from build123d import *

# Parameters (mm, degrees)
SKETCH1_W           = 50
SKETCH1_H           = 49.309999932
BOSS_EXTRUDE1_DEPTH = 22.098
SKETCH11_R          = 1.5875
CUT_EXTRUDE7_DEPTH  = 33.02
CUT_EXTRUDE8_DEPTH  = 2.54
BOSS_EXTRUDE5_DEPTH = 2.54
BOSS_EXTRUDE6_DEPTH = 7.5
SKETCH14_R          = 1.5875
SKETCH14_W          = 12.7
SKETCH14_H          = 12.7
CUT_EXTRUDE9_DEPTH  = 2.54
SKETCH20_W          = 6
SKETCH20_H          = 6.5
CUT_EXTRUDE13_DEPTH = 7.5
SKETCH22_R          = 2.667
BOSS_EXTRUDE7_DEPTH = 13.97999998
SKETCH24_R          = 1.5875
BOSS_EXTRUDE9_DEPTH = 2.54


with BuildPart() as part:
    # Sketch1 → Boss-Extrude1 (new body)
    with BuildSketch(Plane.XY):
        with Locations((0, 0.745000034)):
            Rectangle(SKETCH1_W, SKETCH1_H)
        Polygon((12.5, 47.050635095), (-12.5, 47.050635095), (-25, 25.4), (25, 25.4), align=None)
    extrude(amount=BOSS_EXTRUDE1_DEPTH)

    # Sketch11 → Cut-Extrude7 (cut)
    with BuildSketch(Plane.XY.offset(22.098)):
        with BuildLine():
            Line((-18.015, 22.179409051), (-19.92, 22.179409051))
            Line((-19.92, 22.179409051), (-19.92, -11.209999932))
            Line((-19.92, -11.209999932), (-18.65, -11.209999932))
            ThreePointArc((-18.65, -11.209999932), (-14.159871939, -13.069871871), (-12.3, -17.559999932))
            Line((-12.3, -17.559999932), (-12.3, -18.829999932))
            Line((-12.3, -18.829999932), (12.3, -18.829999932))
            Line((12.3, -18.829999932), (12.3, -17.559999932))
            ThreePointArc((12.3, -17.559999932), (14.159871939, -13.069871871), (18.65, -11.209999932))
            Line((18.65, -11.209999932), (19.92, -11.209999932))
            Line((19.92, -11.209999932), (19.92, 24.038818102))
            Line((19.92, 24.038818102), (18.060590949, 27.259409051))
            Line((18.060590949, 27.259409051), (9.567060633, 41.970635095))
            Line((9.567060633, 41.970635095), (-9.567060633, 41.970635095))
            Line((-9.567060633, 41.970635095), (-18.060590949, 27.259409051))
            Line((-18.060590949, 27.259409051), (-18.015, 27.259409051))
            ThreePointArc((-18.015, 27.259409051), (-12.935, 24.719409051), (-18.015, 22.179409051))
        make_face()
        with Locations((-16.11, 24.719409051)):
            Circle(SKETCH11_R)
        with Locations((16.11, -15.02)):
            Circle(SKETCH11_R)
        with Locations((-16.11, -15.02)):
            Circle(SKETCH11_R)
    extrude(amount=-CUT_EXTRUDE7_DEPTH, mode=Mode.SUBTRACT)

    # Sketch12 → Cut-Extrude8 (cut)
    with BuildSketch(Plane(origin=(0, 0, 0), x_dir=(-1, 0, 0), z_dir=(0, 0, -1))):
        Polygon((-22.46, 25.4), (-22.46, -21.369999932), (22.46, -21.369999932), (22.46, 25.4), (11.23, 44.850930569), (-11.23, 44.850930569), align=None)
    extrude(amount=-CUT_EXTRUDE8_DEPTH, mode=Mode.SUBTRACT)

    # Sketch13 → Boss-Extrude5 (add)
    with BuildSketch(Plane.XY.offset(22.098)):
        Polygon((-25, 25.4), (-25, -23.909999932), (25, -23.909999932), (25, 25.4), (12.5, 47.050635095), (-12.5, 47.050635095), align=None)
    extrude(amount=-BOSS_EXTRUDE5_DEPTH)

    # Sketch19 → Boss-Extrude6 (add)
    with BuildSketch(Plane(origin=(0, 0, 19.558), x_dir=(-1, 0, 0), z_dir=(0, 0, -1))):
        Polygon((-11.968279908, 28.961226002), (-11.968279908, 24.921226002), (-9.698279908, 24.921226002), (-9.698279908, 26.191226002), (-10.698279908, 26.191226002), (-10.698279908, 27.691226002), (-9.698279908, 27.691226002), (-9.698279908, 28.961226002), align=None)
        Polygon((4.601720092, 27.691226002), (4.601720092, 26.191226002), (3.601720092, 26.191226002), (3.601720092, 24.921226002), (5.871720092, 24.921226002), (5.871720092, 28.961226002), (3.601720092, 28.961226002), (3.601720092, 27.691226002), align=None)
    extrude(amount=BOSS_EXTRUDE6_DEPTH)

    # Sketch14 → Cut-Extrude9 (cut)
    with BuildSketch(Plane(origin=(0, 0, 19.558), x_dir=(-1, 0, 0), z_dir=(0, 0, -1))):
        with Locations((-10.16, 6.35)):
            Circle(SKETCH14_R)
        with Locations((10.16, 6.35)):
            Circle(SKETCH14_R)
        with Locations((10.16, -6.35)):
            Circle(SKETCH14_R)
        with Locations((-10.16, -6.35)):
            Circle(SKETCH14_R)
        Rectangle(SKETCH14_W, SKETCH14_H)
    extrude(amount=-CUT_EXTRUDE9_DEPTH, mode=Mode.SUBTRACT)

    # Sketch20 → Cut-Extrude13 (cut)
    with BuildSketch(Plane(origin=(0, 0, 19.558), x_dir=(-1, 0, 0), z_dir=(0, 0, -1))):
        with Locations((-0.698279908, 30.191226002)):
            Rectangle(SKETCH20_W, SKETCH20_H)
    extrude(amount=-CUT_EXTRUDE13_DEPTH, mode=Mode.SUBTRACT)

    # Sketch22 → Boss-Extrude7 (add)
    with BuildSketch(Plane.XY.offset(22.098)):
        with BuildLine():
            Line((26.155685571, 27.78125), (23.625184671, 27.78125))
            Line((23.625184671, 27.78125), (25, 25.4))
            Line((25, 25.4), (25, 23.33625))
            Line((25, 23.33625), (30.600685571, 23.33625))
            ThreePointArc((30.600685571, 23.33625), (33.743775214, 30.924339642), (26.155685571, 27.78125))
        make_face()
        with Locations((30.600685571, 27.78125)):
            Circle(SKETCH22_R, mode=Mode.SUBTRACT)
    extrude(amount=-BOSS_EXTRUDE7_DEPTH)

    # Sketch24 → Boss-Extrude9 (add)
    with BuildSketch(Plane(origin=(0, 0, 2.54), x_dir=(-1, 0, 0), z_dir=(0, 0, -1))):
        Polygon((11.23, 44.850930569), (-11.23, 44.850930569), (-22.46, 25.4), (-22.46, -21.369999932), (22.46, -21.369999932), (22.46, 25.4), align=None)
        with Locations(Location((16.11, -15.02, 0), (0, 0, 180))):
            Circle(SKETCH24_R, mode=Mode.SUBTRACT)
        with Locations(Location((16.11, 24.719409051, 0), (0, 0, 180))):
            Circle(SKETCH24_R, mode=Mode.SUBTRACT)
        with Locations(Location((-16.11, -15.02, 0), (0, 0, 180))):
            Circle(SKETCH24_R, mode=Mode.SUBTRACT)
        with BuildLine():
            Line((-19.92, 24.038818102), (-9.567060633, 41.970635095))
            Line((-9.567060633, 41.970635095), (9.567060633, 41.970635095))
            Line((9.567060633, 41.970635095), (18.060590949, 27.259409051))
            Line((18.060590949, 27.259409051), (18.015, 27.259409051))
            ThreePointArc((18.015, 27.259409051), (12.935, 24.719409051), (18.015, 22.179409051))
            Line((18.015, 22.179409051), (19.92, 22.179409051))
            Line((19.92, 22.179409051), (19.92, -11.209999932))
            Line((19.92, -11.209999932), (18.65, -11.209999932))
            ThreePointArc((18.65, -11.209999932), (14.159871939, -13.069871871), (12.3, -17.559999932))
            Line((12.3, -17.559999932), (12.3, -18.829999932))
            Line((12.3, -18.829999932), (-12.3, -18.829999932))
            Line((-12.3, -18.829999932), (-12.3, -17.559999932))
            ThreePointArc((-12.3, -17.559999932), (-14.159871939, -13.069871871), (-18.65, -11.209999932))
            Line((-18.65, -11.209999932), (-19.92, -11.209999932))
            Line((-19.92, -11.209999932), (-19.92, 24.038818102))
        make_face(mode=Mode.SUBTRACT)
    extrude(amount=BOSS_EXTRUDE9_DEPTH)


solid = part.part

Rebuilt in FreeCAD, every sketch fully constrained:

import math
import FreeCAD as App
import Part
import Sketcher
Q = App.Units.Quantity


def add_polygon(sketch, points):
    """Adds a closed chain of lines whose ends are joined by coincident constraints."""
    first, n = sketch.GeometryCount, len(points)
    for a, b in zip(points, points[1:] + points[:1]):
        sketch.addGeometry(Part.LineSegment(App.Vector(*a, 0), App.Vector(*b, 0)), False)
    for i in range(n):
        sketch.addConstraint(Sketcher.Constraint("Coincident", first + i, 2, first + (i + 1) % n, 1))

doc = App.newDocument("Part")
body = doc.addObject("PartDesign::Body", "Body")

# Sketch on XY plane
sketch1 = doc.addObject("Sketcher::SketchObject", "Sketch")
body.addObject(sketch1)
sketch1.AttachmentSupport = (doc.XY_Plane, [""])
sketch1.MapMode = "FlatFace"
add_polygon(sketch1, [(-25, 25), (-25, -24), (25, -24), (25, 25), (12, 47), (-12, 47)])  # lines 0-5
sketch1.addConstraint(Sketcher.Constraint("Vertical", 0))
sketch1.addConstraint(Sketcher.Constraint("Horizontal", 1))
sketch1.addConstraint(Sketcher.Constraint("Vertical", 2))
sketch1.addConstraint(Sketcher.Constraint("Horizontal", 4))
sketch1.addConstraint(Sketcher.Constraint("Symmetric", 2, 2, 5, 2, -2))
sketch1.addConstraint(Sketcher.Constraint("Equal", 3, 5))
sketch1.addConstraint(Sketcher.Constraint("DistanceY", -1, 1, 2, 2, Q("1 in")))
sketch1.addConstraint(Sketcher.Constraint("Angle", 3, Q("120 deg")))
sketch1.addConstraint(Sketcher.Constraint("DistanceX", 1, 1, 1, 2, Q("50 mm")))
sketch1.addConstraint(Sketcher.Constraint("DistanceX", 4, 2, 4, 1, Q("25 mm")))
sketch1.addConstraint(Sketcher.Constraint("DistanceY", 0, 2, 0, 1, Q("49.31 mm")))
pad1 = doc.addObject("PartDesign::Pad", "Pad")
body.addObject(pad1)
pad1.Profile = sketch1
pad1.Length = Q("0.87 in")

# Sketch on XY plane
sketch2 = doc.addObject("Sketcher::SketchObject", "Sketch001")
body.addObject(sketch2)
sketch2.AttachmentSupport = (doc.XY_Plane, [""])
sketch2.MapMode = "FlatFace"
sketch2.AttachmentOffset = App.Placement(App.Vector(0, 0, 0.87 * 25.4), App.Rotation())
sketch2.addGeometry(Part.LineSegment(App.Vector(-18.015, 22.179, 0), App.Vector(-19.92, 22.179, 0)), False)
sketch2.addGeometry(Part.LineSegment(App.Vector(-19.92, 22.179, 0), App.Vector(-19.92, -11.21, 0)), False)
sketch2.addGeometry(Part.LineSegment(App.Vector(-19.92, -11.21, 0), App.Vector(-18.65, -11.21, 0)), False)
sketch2.addGeometry(Part.ArcOfCircle(Part.Circle(App.Vector(-18.65, -17.56, 0), App.Vector(0, 0, 1), 6.35), math.radians(0), math.radians(90)), False)
sketch2.addGeometry(Part.LineSegment(App.Vector(-12.3, -17.56, 0), App.Vector(-12.3, -18.83, 0)), False)
sketch2.addGeometry(Part.LineSegment(App.Vector(-12.3, -18.83, 0), App.Vector(12.3, -18.83, 0)), False)
sketch2.addGeometry(Part.LineSegment(App.Vector(12.3, -18.83, 0), App.Vector(12.3, -17.56, 0)), False)
sketch2.addGeometry(Part.ArcOfCircle(Part.Circle(App.Vector(18.65, -17.56, 0), App.Vector(0, 0, 1), 6.35), math.radians(90), math.radians(180)), False)
sketch2.addGeometry(Part.LineSegment(App.Vector(18.65, -11.21, 0), App.Vector(19.92, -11.21, 0)), False)
sketch2.addGeometry(Part.LineSegment(App.Vector(19.92, -11.21, 0), App.Vector(19.92, 24.039, 0)), False)
sketch2.addGeometry(Part.LineSegment(App.Vector(19.92, 24.039, 0), App.Vector(18.061, 27.259, 0)), False)
sketch2.addGeometry(Part.LineSegment(App.Vector(18.061, 27.259, 0), App.Vector(9.567, 41.971, 0)), False)
sketch2.addGeometry(Part.LineSegment(App.Vector(9.567, 41.971, 0), App.Vector(-9.567, 41.971, 0)), False)
sketch2.addGeometry(Part.LineSegment(App.Vector(-9.567, 41.971, 0), App.Vector(-18.061, 27.259, 0)), False)
sketch2.addGeometry(Part.LineSegment(App.Vector(-18.061, 27.259, 0), App.Vector(-18.015, 27.259, 0)), False)
sketch2.addGeometry(Part.ArcOfCircle(Part.Circle(App.Vector(-16.11, 24.719, 0), App.Vector(0, 0, 1), 3.175), math.radians(-127), math.radians(127)), False)
sketch2.addGeometry(Part.Circle(App.Vector(-16.11, 24.719, 0), App.Vector(0, 0, 1), 1.587), False)
sketch2.addGeometry(Part.Circle(App.Vector(16.11, -15.02, 0), App.Vector(0, 0, 1), 1.587), False)
sketch2.addGeometry(Part.Circle(App.Vector(-16.11, -15.02, 0), App.Vector(0, 0, 1), 1.587), False)
sketch2.addConstraint(Sketcher.Constraint("Coincident", 0, 2, 1, 1))
sketch2.addConstraint(Sketcher.Constraint("Coincident", 1, 2, 2, 1))
sketch2.addConstraint(Sketcher.Constraint("Tangent", 2, 2, 3, 2))
sketch2.addConstraint(Sketcher.Constraint("Tangent", 3, 1, 4, 1))
sketch2.addConstraint(Sketcher.Constraint("Coincident", 4, 2, 5, 1))
sketch2.addConstraint(Sketcher.Constraint("Coincident", 5, 2, 6, 1))
sketch2.addConstraint(Sketcher.Constraint("Tangent", 6, 2, 7, 2))
sketch2.addConstraint(Sketcher.Constraint("Tangent", 7, 1, 8, 1))
sketch2.addConstraint(Sketcher.Constraint("Coincident", 8, 2, 9, 1))
sketch2.addConstraint(Sketcher.Constraint("Coincident", 9, 2, 10, 1))
sketch2.addConstraint(Sketcher.Constraint("Coincident", 10, 2, 11, 1))
sketch2.addConstraint(Sketcher.Constraint("Coincident", 11, 2, 12, 1))
sketch2.addConstraint(Sketcher.Constraint("Coincident", 12, 2, 13, 1))
sketch2.addConstraint(Sketcher.Constraint("Coincident", 13, 2, 14, 1))
sketch2.addConstraint(Sketcher.Constraint("Coincident", 14, 2, 15, 2))
sketch2.addConstraint(Sketcher.Constraint("Coincident", 15, 1, 0, 1))
sketch2.addConstraint(Sketcher.Constraint("Horizontal", 0))
sketch2.addConstraint(Sketcher.Constraint("Vertical", 1))
sketch2.addConstraint(Sketcher.Constraint("Horizontal", 2))
sketch2.addConstraint(Sketcher.Constraint("Vertical", 4))
sketch2.addConstraint(Sketcher.Constraint("Horizontal", 5))
sketch2.addConstraint(Sketcher.Constraint("Vertical", 6))
sketch2.addConstraint(Sketcher.Constraint("Horizontal", 8))
sketch2.addConstraint(Sketcher.Constraint("Vertical", 9))
sketch2.addConstraint(Sketcher.Constraint("Horizontal", 12))
sketch2.addConstraint(Sketcher.Constraint("Horizontal", 14))
sketch2.addConstraint(Sketcher.Constraint("Coincident", 16, 3, 15, 3))
sketch2.addConstraint(Sketcher.Constraint("Equal", 3, 7))
sketch2.addConstraint(Sketcher.Constraint("Equal", 16, 17))
sketch2.addConstraint(Sketcher.Constraint("Equal", 17, 18))
sketch2.addConstraint(Sketcher.Constraint("Symmetric", 3, 3, 7, 3, -2))
sketch2.addConstraint(Sketcher.Constraint("Symmetric", 17, 3, 18, 3, -2))
sketch2.addConstraint(Sketcher.Constraint("Symmetric", 10, 2, 13, 2, -2))
sketch2.addConstraint(Sketcher.Constraint("Parallel", 10, 11))
sketch2.addConstraint(Sketcher.Constraint("Vertical", 16, 3, 18, 3))
sketch2.addConstraint(Sketcher.Constraint("Vertical", 14, 2, 15, 1))
sketch2.addConstraint(Sketcher.Constraint("Equal", 2, 8))
sketch2.addConstraint(Sketcher.Constraint("Equal", 8, 4))
sketch2.addConstraint(Sketcher.Constraint("Equal", 11, 13))
sketch2.addConstraint(Sketcher.Constraint("Radius", 3, Q("0.25 in")))
sketch2.addConstraint(Sketcher.Constraint("Diameter", 16, Q("0.125 in")))
sketch2.addConstraint(Sketcher.Constraint("Angle", 10, Q("120 deg")))
sketch2.addConstraint(Sketcher.Constraint("Radius", 15, Q("0.125 in")))
sketch2.addConstraint(Sketcher.Constraint("DistanceX", 2, 1, 2, 2, Q("0.05 in")))
sketch2.addConstraint(Sketcher.Constraint("DistanceX", 3, 3, 15, 3, Q("0.1 in")))
sketch2.addConstraint(Sketcher.Constraint("DistanceY", 7, 3, 17, 3, Q("0.1 in")))
sketch2.addConstraint(Sketcher.Constraint("DistanceY", 0, 2, 15, 3, Q("0.1 in")))
sketch2.addConstraint(Sketcher.Constraint("DistanceX", 5, 1, 5, 2, Q("24.6 mm")))
sketch2.addConstraint(Sketcher.Constraint("DistanceX", 12, 2, 12, 1, Q("19.134121 mm")))
sketch2.addConstraint(Sketcher.Constraint("DistanceX", 14, 1, 14, 2, Q("0.045591 mm")))
sketch2.addConstraint(Sketcher.Constraint("DistanceY", 1, 2, 1, 1, Q("33.389409 mm")))
sketch2.addConstraint(Sketcher.Constraint("DistanceY", 3, 3, -1, 1, Q("17.56 mm")))
pocket1 = doc.addObject("PartDesign::Pocket", "Pocket")
body.addObject(pocket1)
pocket1.Profile = sketch2
pocket1.Length = Q("1.3 in")

# Sketch on XY plane
sketch3 = doc.addObject("Sketcher::SketchObject", "Sketch002")
body.addObject(sketch3)
sketch3.AttachmentSupport = (doc.XY_Plane, [""])
sketch3.MapMode = "FlatFace"
add_polygon(sketch3, [(22, 25), (22, -21), (-22, -21), (-22, 25), (-11, 45), (11, 45)])  # lines 0-5
sketch3.addConstraint(Sketcher.Constraint("Vertical", 0))
sketch3.addConstraint(Sketcher.Constraint("Horizontal", 1))
sketch3.addConstraint(Sketcher.Constraint("Vertical", 2))
sketch3.addConstraint(Sketcher.Constraint("Horizontal", 4))
sketch3.addConstraint(Sketcher.Constraint("Symmetric", 2, 2, 5, 2, -2))
sketch3.addConstraint(Sketcher.Constraint("Equal", 3, 5))
sketch3.addConstraint(Sketcher.Constraint("DistanceY", -1, 1, 2, 2, Q("1 in")))
sketch3.addConstraint(Sketcher.Constraint("Angle", 3, Q("60 deg")))
sketch3.addConstraint(Sketcher.Constraint("DistanceX", 1, 2, 1, 1, Q("44.92 mm")))
sketch3.addConstraint(Sketcher.Constraint("DistanceX", 4, 1, 4, 2, Q("22.46 mm")))
sketch3.addConstraint(Sketcher.Constraint("DistanceY", 0, 2, 0, 1, Q("46.77 mm")))
pocket2 = doc.addObject("PartDesign::Pocket", "Pocket001")
body.addObject(pocket2)
pocket2.Profile = sketch3
pocket2.Length = Q("0.1 in")
pocket2.Reversed = True

# Sketch on XY plane
sketch4 = doc.addObject("Sketcher::SketchObject", "Sketch003")
body.addObject(sketch4)
sketch4.AttachmentSupport = (doc.XY_Plane, [""])
sketch4.MapMode = "FlatFace"
sketch4.AttachmentOffset = App.Placement(App.Vector(0, 0, 0.87 * 25.4), App.Rotation())
add_polygon(sketch4, [(-25, 25), (-25, -24), (25, -24), (25, 25), (12, 47), (-12, 47)])  # lines 0-5
sketch4.addConstraint(Sketcher.Constraint("Vertical", 0))
sketch4.addConstraint(Sketcher.Constraint("Horizontal", 1))
sketch4.addConstraint(Sketcher.Constraint("Vertical", 2))
sketch4.addConstraint(Sketcher.Constraint("Horizontal", 4))
sketch4.addConstraint(Sketcher.Constraint("Symmetric", 2, 2, 5, 2, -2))
sketch4.addConstraint(Sketcher.Constraint("Equal", 3, 5))
sketch4.addConstraint(Sketcher.Constraint("DistanceY", -1, 1, 2, 2, Q("1 in")))
sketch4.addConstraint(Sketcher.Constraint("Angle", 3, Q("120 deg")))
sketch4.addConstraint(Sketcher.Constraint("DistanceX", 1, 1, 1, 2, Q("50 mm")))
sketch4.addConstraint(Sketcher.Constraint("DistanceX", 4, 2, 4, 1, Q("25 mm")))
sketch4.addConstraint(Sketcher.Constraint("DistanceY", 0, 2, 0, 1, Q("49.31 mm")))
pad2 = doc.addObject("PartDesign::Pad", "Pad001")
body.addObject(pad2)
pad2.Profile = sketch4
pad2.Length = Q("0.1 in")
pad2.Reversed = True

# Sketch on XY plane
sketch5 = doc.addObject("Sketcher::SketchObject", "Sketch004")
body.addObject(sketch5)
sketch5.AttachmentSupport = (doc.XY_Plane, [""])
sketch5.MapMode = "FlatFace"
sketch5.AttachmentOffset = App.Placement(App.Vector(0, 0, 0.77 * 25.4), App.Rotation())
add_polygon(sketch5, [(12, 29), (12, 24.9), (9.7, 24.9), (9.7, 26.2), (10.7, 26.2), (10.7, 27.7), (9.7, 27.7), (9.7, 29)])  # lines 0-7
add_polygon(sketch5, [(-4.6, 27.7), (-4.6, 26.2), (-3.6, 26.2), (-3.6, 24.9), (-5.9, 24.9), (-5.9, 29), (-3.6, 29), (-3.6, 27.7)])  # lines 8-15
sketch5.addConstraint(Sketcher.Constraint("Vertical", 0))
sketch5.addConstraint(Sketcher.Constraint("Horizontal", 1))
sketch5.addConstraint(Sketcher.Constraint("Vertical", 2))
sketch5.addConstraint(Sketcher.Constraint("Horizontal", 3))
sketch5.addConstraint(Sketcher.Constraint("Vertical", 4))
sketch5.addConstraint(Sketcher.Constraint("Horizontal", 5))
sketch5.addConstraint(Sketcher.Constraint("Vertical", 6))
sketch5.addConstraint(Sketcher.Constraint("Horizontal", 7))
sketch5.addConstraint(Sketcher.Constraint("Vertical", 8))
sketch5.addConstraint(Sketcher.Constraint("Horizontal", 9))
sketch5.addConstraint(Sketcher.Constraint("Vertical", 10))
sketch5.addConstraint(Sketcher.Constraint("Horizontal", 11))
sketch5.addConstraint(Sketcher.Constraint("Vertical", 12))
sketch5.addConstraint(Sketcher.Constraint("Horizontal", 13))
sketch5.addConstraint(Sketcher.Constraint("Vertical", 14))
sketch5.addConstraint(Sketcher.Constraint("Horizontal", 15))
sketch5.addConstraint(Sketcher.Constraint("Horizontal", 3, 2, 8, 2))
sketch5.addConstraint(Sketcher.Constraint("Horizontal", 1, 2, 10, 2))
sketch5.addConstraint(Sketcher.Constraint("Horizontal", 7, 2, 12, 2))
sketch5.addConstraint(Sketcher.Constraint("Horizontal", 5, 2, 14, 2))
sketch5.addConstraint(Sketcher.Constraint("Vertical", 2, 2, 5, 2))
sketch5.addConstraint(Sketcher.Constraint("Vertical", 10, 2, 13, 2))
sketch5.addConstraint(Sketcher.Constraint("Equal", 5, 9))
sketch5.addConstraint(Sketcher.Constraint("Equal", 7, 11))
sketch5.addConstraint(Sketcher.Constraint("Equal", 2, 6))
sketch5.addConstraint(Sketcher.Constraint("DistanceY", 2, 1, 2, 2, Q("0.05 in")))
sketch5.addConstraint(Sketcher.Constraint("DistanceX", 3, 2, 0, 2, Q("0.05 in")))
sketch5.addConstraint(Sketcher.Constraint("DistanceX", 1, 2, 1, 1, Q("2.27 mm")))
sketch5.addConstraint(Sketcher.Constraint("DistanceY", 0, 2, 0, 1, Q("4.04 mm")))
sketch5.addConstraint(Sketcher.Constraint("DistanceX", 9, 2, -1, 1, Q("0.1418 in")))
sketch5.addConstraint(Sketcher.Constraint("DistanceX", 8, 2, 2, 2, Q("14.3 mm")))
sketch5.addConstraint(Sketcher.Constraint("DistanceY", -1, 1, 0, 2, Q("24.921226 mm")))
pad3 = doc.addObject("PartDesign::Pad", "Pad002")
body.addObject(pad3)
pad3.Profile = sketch5
pad3.Length = 7.5
pad3.Reversed = True

# Sketch on XY plane
sketch6 = doc.addObject("Sketcher::SketchObject", "Sketch005")
body.addObject(sketch6)
sketch6.AttachmentSupport = (doc.XY_Plane, [""])
sketch6.MapMode = "FlatFace"
sketch6.AttachmentOffset = App.Placement(App.Vector(0, 0, 0.77 * 25.4), App.Rotation())
sketch6.addGeometry(Part.Circle(App.Vector(10.2, 6.3, 0), App.Vector(0, 0, 1), 1.6), False)  # 0
sketch6.addGeometry(Part.Circle(App.Vector(-10.2, 6.3, 0), App.Vector(0, 0, 1), 1.6), False)  # 1
sketch6.addGeometry(Part.Circle(App.Vector(-10.2, -6.3, 0), App.Vector(0, 0, 1), 1.6), False)  # 2
sketch6.addGeometry(Part.Circle(App.Vector(10.2, -6.3, 0), App.Vector(0, 0, 1), 1.6), False)  # 3
add_polygon(sketch6, [(6.3, 6.3), (6.3, -6.3), (-6.3, -6.3), (-6.3, 6.3)])  # lines 4-7
sketch6.addConstraint(Sketcher.Constraint("Vertical", 4))
sketch6.addConstraint(Sketcher.Constraint("Horizontal", 5))
sketch6.addConstraint(Sketcher.Constraint("Vertical", 6))
sketch6.addConstraint(Sketcher.Constraint("Horizontal", 7))
sketch6.addConstraint(Sketcher.Constraint("Equal", 0, 1))
sketch6.addConstraint(Sketcher.Constraint("Equal", 1, 2))
sketch6.addConstraint(Sketcher.Constraint("Equal", 2, 3))
sketch6.addConstraint(Sketcher.Constraint("Symmetric", 0, 3, 2, 3, -1, 1))
sketch6.addConstraint(Sketcher.Constraint("Symmetric", 1, 3, 3, 3, -1, 1))
sketch6.addConstraint(Sketcher.Constraint("Symmetric", 4, 2, 6, 2, -1, 1))
sketch6.addConstraint(Sketcher.Constraint("Symmetric", 0, 3, 1, 3, -2))
sketch6.addConstraint(Sketcher.Constraint("Horizontal", 3, 3, 4, 2))
sketch6.addConstraint(Sketcher.Constraint("Equal", 7, 4))
sketch6.addConstraint(Sketcher.Constraint("Diameter", 0, Q("0.125 in")))
sketch6.addConstraint(Sketcher.Constraint("DistanceX", 5, 2, 5, 1, Q("0.5 in")))
sketch6.addConstraint(Sketcher.Constraint("DistanceX", -1, 1, 0, 3, Q("0.4 in")))
pocket3 = doc.addObject("PartDesign::Pocket", "Pocket002")
body.addObject(pocket3)
pocket3.Profile = sketch6
pocket3.Length = Q("0.1 in")
pocket3.Reversed = True

# Sketch on XY plane
sketch7 = doc.addObject("Sketcher::SketchObject", "Sketch006")
body.addObject(sketch7)
sketch7.AttachmentSupport = (doc.XY_Plane, [""])
sketch7.MapMode = "FlatFace"
sketch7.AttachmentOffset = App.Placement(App.Vector(0, 0, 0.77 * 25.4), App.Rotation())
add_polygon(sketch7, [(4, 33), (4, 27), (-2, 27), (-2, 33)])  # lines 0-3
sketch7.addConstraint(Sketcher.Constraint("Vertical", 0))
sketch7.addConstraint(Sketcher.Constraint("Horizontal", 1))
sketch7.addConstraint(Sketcher.Constraint("Vertical", 2))
sketch7.addConstraint(Sketcher.Constraint("Horizontal", 3))
sketch7.addConstraint(Sketcher.Constraint("DistanceX", 1, 2, 1, 1, Q("6 mm")))
sketch7.addConstraint(Sketcher.Constraint("DistanceY", 0, 2, 0, 1, Q("6.5 mm")))
sketch7.addConstraint(Sketcher.Constraint("DistanceX", -1, 1, 0, 2, Q("3.69828 mm")))
sketch7.addConstraint(Sketcher.Constraint("DistanceY", -1, 1, 0, 2, Q("26.941226 mm")))
pocket4 = doc.addObject("PartDesign::Pocket", "Pocket003")
body.addObject(pocket4)
pocket4.Profile = sketch7
pocket4.Length = 7.5
pocket4.Reversed = True

# Sketch on XY plane
sketch8 = doc.addObject("Sketcher::SketchObject", "Sketch007")
body.addObject(sketch8)
sketch8.AttachmentSupport = (doc.XY_Plane, [""])
sketch8.MapMode = "FlatFace"
sketch8.AttachmentOffset = App.Placement(App.Vector(0, 0, 0.87 * 25.4), App.Rotation())
sketch8.addGeometry(Part.LineSegment(App.Vector(26.2, 27.8, 0), App.Vector(23.6, 27.8, 0)), False)
sketch8.addGeometry(Part.LineSegment(App.Vector(23.6, 27.8, 0), App.Vector(25, 25.4, 0)), False)
sketch8.addGeometry(Part.LineSegment(App.Vector(25, 25.4, 0), App.Vector(25, 23.3, 0)), False)
sketch8.addGeometry(Part.LineSegment(App.Vector(25, 23.3, 0), App.Vector(30.6, 23.3, 0)), False)
sketch8.addGeometry(Part.ArcOfCircle(Part.Circle(App.Vector(30.6, 27.8, 0), App.Vector(0, 0, 1), 4.4), math.radians(-90), math.radians(180)), False)
sketch8.addGeometry(Part.Circle(App.Vector(30.6, 27.8, 0), App.Vector(0, 0, 1), 2.7), False)
sketch8.addConstraint(Sketcher.Constraint("Coincident", 0, 2, 1, 1))
sketch8.addConstraint(Sketcher.Constraint("Coincident", 1, 2, 2, 1))
sketch8.addConstraint(Sketcher.Constraint("Coincident", 2, 2, 3, 1))
sketch8.addConstraint(Sketcher.Constraint("Tangent", 3, 2, 4, 1))
sketch8.addConstraint(Sketcher.Constraint("Coincident", 4, 2, 0, 1))
sketch8.addConstraint(Sketcher.Constraint("Horizontal", 0))
sketch8.addConstraint(Sketcher.Constraint("Vertical", 2))
sketch8.addConstraint(Sketcher.Constraint("Horizontal", 3))
sketch8.addConstraint(Sketcher.Constraint("Coincident", 5, 3, 4, 3))
sketch8.addConstraint(Sketcher.Constraint("Horizontal", 5, 3, 0, 2))
sketch8.addConstraint(Sketcher.Constraint("Diameter", 5, Q("0.21 in")))
sketch8.addConstraint(Sketcher.Constraint("DistanceY", -1, 1, 1, 2, Q("1 in")))
sketch8.addConstraint(Sketcher.Constraint("Angle", 1, Q("-60 deg")))
sketch8.addConstraint(Sketcher.Constraint("Radius", 4, Q("0.175 in")))
sketch8.addConstraint(Sketcher.Constraint("DistanceY", -1, 1, 4, 3, Q("1.09375 in")))
sketch8.addConstraint(Sketcher.Constraint("DistanceX", 0, 2, 0, 1, Q("2.530501 mm")))
sketch8.addConstraint(Sketcher.Constraint("DistanceX", -1, 1, 1, 2, Q("25 mm")))
pad4 = doc.addObject("PartDesign::Pad", "Pad003")
body.addObject(pad4)
pad4.Profile = sketch8
pad4.Length = 13.98
pad4.Reversed = True

# Sketch on XY plane
sketch9 = doc.addObject("Sketcher::SketchObject", "Sketch008")
body.addObject(sketch9)
sketch9.AttachmentSupport = (doc.XY_Plane, [""])
sketch9.MapMode = "FlatFace"
sketch9.AttachmentOffset = App.Placement(App.Vector(0, 0, 0.1 * 25.4), App.Rotation())
add_polygon(sketch9, [(-11.23, 44.851), (11.23, 44.851), (22.46, 25.4), (22.46, -21.37), (-22.46, -21.37), (-22.46, 25.4)])  # lines 0-5
sketch9.addGeometry(Part.Circle(App.Vector(16.11, -15.02, 0), App.Vector(0, 0, 1), 1.587), False)  # 6
sketch9.addGeometry(Part.LineSegment(App.Vector(19.92, -11.21, 0), App.Vector(19.92, 24.039, 0)), False)  # 7
sketch9.addGeometry(Part.LineSegment(App.Vector(19.92, 24.039, 0), App.Vector(9.567, 41.971, 0)), False)  # 8
sketch9.addGeometry(Part.LineSegment(App.Vector(9.567, 41.971, 0), App.Vector(-9.567, 41.971, 0)), False)  # 9
sketch9.addGeometry(Part.LineSegment(App.Vector(-9.567, 41.971, 0), App.Vector(-18.061, 27.259, 0)), False)  # 10
sketch9.addGeometry(Part.LineSegment(App.Vector(-18.061, 27.259, 0), App.Vector(-18.015, 27.259, 0)), False)  # 11
sketch9.addGeometry(Part.ArcOfCircle(Part.Circle(App.Vector(-16.11, 24.719, 0), App.Vector(0, 0, 1), 3.175), math.radians(-127), math.radians(127)), False)  # 12
sketch9.addGeometry(Part.LineSegment(App.Vector(-18.015, 22.179, 0), App.Vector(-19.92, 22.179, 0)), False)  # 13
sketch9.addGeometry(Part.LineSegment(App.Vector(-19.92, 22.179, 0), App.Vector(-19.92, -11.21, 0)), False)  # 14
sketch9.addGeometry(Part.LineSegment(App.Vector(-19.92, -11.21, 0), App.Vector(-18.65, -11.21, 0)), False)  # 15
sketch9.addGeometry(Part.ArcOfCircle(Part.Circle(App.Vector(-18.65, -17.56, 0), App.Vector(0, 0, 1), 6.35), math.radians(0), math.radians(90)), False)  # 16
sketch9.addGeometry(Part.LineSegment(App.Vector(-12.3, -17.56, 0), App.Vector(-12.3, -18.83, 0)), False)  # 17
sketch9.addGeometry(Part.LineSegment(App.Vector(-12.3, -18.83, 0), App.Vector(12.3, -18.83, 0)), False)  # 18
sketch9.addGeometry(Part.LineSegment(App.Vector(12.3, -18.83, 0), App.Vector(12.3, -17.56, 0)), False)  # 19
sketch9.addGeometry(Part.ArcOfCircle(Part.Circle(App.Vector(18.65, -17.56, 0), App.Vector(0, 0, 1), 6.35), math.radians(90), math.radians(180)), False)  # 20
sketch9.addGeometry(Part.LineSegment(App.Vector(18.65, -11.21, 0), App.Vector(19.92, -11.21, 0)), False)  # 21
sketch9.addGeometry(Part.Circle(App.Vector(-16.11, -15.02, 0), App.Vector(0, 0, 1), 1.587), False)  # 22
sketch9.addGeometry(Part.Circle(App.Vector(-16.11, 24.719, 0), App.Vector(0, 0, 1), 1.587), False)  # 23
sketch9.addConstraint(Sketcher.Constraint("Coincident", 7, 2, 8, 1))
sketch9.addConstraint(Sketcher.Constraint("Coincident", 8, 2, 9, 1))
sketch9.addConstraint(Sketcher.Constraint("Coincident", 9, 2, 10, 1))
sketch9.addConstraint(Sketcher.Constraint("Coincident", 10, 2, 11, 1))
sketch9.addConstraint(Sketcher.Constraint("Coincident", 11, 2, 12, 2))
sketch9.addConstraint(Sketcher.Constraint("Coincident", 12, 1, 13, 1))
sketch9.addConstraint(Sketcher.Constraint("Coincident", 13, 2, 14, 1))
sketch9.addConstraint(Sketcher.Constraint("Coincident", 14, 2, 15, 1))
sketch9.addConstraint(Sketcher.Constraint("Tangent", 15, 2, 16, 2))
sketch9.addConstraint(Sketcher.Constraint("Tangent", 16, 1, 17, 1))
sketch9.addConstraint(Sketcher.Constraint("Coincident", 17, 2, 18, 1))
sketch9.addConstraint(Sketcher.Constraint("Coincident", 18, 2, 19, 1))
sketch9.addConstraint(Sketcher.Constraint("Tangent", 19, 2, 20, 2))
sketch9.addConstraint(Sketcher.Constraint("Tangent", 20, 1, 21, 1))
sketch9.addConstraint(Sketcher.Constraint("Coincident", 21, 2, 7, 1))
sketch9.addConstraint(Sketcher.Constraint("Horizontal", 0))
sketch9.addConstraint(Sketcher.Constraint("Vertical", 2))
sketch9.addConstraint(Sketcher.Constraint("Horizontal", 3))
sketch9.addConstraint(Sketcher.Constraint("Vertical", 4))
sketch9.addConstraint(Sketcher.Constraint("Vertical", 7))
sketch9.addConstraint(Sketcher.Constraint("Horizontal", 9))
sketch9.addConstraint(Sketcher.Constraint("Horizontal", 11))
sketch9.addConstraint(Sketcher.Constraint("Horizontal", 13))
sketch9.addConstraint(Sketcher.Constraint("Vertical", 14))
sketch9.addConstraint(Sketcher.Constraint("Horizontal", 15))
sketch9.addConstraint(Sketcher.Constraint("Vertical", 17))
sketch9.addConstraint(Sketcher.Constraint("Horizontal", 18))
sketch9.addConstraint(Sketcher.Constraint("Vertical", 19))
sketch9.addConstraint(Sketcher.Constraint("Horizontal", 21))
sketch9.addConstraint(Sketcher.Constraint("Coincident", 23, 3, 12, 3))
sketch9.addConstraint(Sketcher.Constraint("Equal", 16, 20))
sketch9.addConstraint(Sketcher.Constraint("Equal", 6, 22))
sketch9.addConstraint(Sketcher.Constraint("Equal", 22, 23))
sketch9.addConstraint(Sketcher.Constraint("Symmetric", 16, 3, 20, 3, -2))
sketch9.addConstraint(Sketcher.Constraint("Symmetric", 6, 3, 22, 3, -2))
sketch9.addConstraint(Sketcher.Constraint("Symmetric", 1, 2, 4, 2, -2))
sketch9.addConstraint(Sketcher.Constraint("Parallel", 1, 8))
sketch9.addConstraint(Sketcher.Constraint("Parallel", 5, 10))
sketch9.addConstraint(Sketcher.Constraint("Vertical", 12, 3, 22, 3))
sketch9.addConstraint(Sketcher.Constraint("Vertical", 11, 2, 12, 1))
sketch9.addConstraint(Sketcher.Constraint("Equal", 15, 21))
sketch9.addConstraint(Sketcher.Constraint("Equal", 21, 17))
sketch9.addConstraint(Sketcher.Constraint("Equal", 1, 5))
sketch9.addConstraint(Sketcher.Constraint("Radius", 16, Q("0.25 in")))
sketch9.addConstraint(Sketcher.Constraint("Diameter", 6, Q("0.125 in")))
sketch9.addConstraint(Sketcher.Constraint("DistanceY", -1, 1, 1, 2, Q("1 in")))
sketch9.addConstraint(Sketcher.Constraint("Angle", 1, Q("-60 deg")))
sketch9.addConstraint(Sketcher.Constraint("Radius", 12, Q("0.125 in")))
sketch9.addConstraint(Sketcher.Constraint("DistanceX", 15, 1, 15, 2, Q("0.05 in")))
sketch9.addConstraint(Sketcher.Constraint("DistanceY", 16, 3, 6, 3, Q("0.1 in")))
sketch9.addConstraint(Sketcher.Constraint("DistanceX", 16, 3, 12, 3, Q("0.1 in")))
sketch9.addConstraint(Sketcher.Constraint("DistanceX", 7, 2, 1, 2, Q("0.1 in")))
sketch9.addConstraint(Sketcher.Constraint("DistanceY", 12, 3, 10, 2, Q("0.1 in")))
sketch9.addConstraint(Sketcher.Constraint("DistanceY", 3, 2, 14, 2, Q("0.4 in")))
sketch9.addConstraint(Sketcher.Constraint("DistanceX", 0, 1, 0, 2, Q("22.46 mm")))
sketch9.addConstraint(Sketcher.Constraint("DistanceX", 3, 2, 3, 1, Q("44.92 mm")))
sketch9.addConstraint(Sketcher.Constraint("DistanceY", 2, 2, 2, 1, Q("46.77 mm")))
sketch9.addConstraint(Sketcher.Constraint("DistanceX", 9, 2, 9, 1, Q("19.134121 mm")))
sketch9.addConstraint(Sketcher.Constraint("DistanceX", 11, 1, 11, 2, Q("0.045591 mm")))
sketch9.addConstraint(Sketcher.Constraint("DistanceY", 7, 1, 7, 2, Q("35.248818 mm")))
sketch9.addConstraint(Sketcher.Constraint("DistanceY", 14, 2, 14, 1, Q("33.389409 mm")))
pad5 = doc.addObject("PartDesign::Pad", "Pad004")
body.addObject(pad5)
pad5.Profile = sketch9
pad5.Length = Q("0.1 in")
pad5.Reversed = True

doc.recompute()
